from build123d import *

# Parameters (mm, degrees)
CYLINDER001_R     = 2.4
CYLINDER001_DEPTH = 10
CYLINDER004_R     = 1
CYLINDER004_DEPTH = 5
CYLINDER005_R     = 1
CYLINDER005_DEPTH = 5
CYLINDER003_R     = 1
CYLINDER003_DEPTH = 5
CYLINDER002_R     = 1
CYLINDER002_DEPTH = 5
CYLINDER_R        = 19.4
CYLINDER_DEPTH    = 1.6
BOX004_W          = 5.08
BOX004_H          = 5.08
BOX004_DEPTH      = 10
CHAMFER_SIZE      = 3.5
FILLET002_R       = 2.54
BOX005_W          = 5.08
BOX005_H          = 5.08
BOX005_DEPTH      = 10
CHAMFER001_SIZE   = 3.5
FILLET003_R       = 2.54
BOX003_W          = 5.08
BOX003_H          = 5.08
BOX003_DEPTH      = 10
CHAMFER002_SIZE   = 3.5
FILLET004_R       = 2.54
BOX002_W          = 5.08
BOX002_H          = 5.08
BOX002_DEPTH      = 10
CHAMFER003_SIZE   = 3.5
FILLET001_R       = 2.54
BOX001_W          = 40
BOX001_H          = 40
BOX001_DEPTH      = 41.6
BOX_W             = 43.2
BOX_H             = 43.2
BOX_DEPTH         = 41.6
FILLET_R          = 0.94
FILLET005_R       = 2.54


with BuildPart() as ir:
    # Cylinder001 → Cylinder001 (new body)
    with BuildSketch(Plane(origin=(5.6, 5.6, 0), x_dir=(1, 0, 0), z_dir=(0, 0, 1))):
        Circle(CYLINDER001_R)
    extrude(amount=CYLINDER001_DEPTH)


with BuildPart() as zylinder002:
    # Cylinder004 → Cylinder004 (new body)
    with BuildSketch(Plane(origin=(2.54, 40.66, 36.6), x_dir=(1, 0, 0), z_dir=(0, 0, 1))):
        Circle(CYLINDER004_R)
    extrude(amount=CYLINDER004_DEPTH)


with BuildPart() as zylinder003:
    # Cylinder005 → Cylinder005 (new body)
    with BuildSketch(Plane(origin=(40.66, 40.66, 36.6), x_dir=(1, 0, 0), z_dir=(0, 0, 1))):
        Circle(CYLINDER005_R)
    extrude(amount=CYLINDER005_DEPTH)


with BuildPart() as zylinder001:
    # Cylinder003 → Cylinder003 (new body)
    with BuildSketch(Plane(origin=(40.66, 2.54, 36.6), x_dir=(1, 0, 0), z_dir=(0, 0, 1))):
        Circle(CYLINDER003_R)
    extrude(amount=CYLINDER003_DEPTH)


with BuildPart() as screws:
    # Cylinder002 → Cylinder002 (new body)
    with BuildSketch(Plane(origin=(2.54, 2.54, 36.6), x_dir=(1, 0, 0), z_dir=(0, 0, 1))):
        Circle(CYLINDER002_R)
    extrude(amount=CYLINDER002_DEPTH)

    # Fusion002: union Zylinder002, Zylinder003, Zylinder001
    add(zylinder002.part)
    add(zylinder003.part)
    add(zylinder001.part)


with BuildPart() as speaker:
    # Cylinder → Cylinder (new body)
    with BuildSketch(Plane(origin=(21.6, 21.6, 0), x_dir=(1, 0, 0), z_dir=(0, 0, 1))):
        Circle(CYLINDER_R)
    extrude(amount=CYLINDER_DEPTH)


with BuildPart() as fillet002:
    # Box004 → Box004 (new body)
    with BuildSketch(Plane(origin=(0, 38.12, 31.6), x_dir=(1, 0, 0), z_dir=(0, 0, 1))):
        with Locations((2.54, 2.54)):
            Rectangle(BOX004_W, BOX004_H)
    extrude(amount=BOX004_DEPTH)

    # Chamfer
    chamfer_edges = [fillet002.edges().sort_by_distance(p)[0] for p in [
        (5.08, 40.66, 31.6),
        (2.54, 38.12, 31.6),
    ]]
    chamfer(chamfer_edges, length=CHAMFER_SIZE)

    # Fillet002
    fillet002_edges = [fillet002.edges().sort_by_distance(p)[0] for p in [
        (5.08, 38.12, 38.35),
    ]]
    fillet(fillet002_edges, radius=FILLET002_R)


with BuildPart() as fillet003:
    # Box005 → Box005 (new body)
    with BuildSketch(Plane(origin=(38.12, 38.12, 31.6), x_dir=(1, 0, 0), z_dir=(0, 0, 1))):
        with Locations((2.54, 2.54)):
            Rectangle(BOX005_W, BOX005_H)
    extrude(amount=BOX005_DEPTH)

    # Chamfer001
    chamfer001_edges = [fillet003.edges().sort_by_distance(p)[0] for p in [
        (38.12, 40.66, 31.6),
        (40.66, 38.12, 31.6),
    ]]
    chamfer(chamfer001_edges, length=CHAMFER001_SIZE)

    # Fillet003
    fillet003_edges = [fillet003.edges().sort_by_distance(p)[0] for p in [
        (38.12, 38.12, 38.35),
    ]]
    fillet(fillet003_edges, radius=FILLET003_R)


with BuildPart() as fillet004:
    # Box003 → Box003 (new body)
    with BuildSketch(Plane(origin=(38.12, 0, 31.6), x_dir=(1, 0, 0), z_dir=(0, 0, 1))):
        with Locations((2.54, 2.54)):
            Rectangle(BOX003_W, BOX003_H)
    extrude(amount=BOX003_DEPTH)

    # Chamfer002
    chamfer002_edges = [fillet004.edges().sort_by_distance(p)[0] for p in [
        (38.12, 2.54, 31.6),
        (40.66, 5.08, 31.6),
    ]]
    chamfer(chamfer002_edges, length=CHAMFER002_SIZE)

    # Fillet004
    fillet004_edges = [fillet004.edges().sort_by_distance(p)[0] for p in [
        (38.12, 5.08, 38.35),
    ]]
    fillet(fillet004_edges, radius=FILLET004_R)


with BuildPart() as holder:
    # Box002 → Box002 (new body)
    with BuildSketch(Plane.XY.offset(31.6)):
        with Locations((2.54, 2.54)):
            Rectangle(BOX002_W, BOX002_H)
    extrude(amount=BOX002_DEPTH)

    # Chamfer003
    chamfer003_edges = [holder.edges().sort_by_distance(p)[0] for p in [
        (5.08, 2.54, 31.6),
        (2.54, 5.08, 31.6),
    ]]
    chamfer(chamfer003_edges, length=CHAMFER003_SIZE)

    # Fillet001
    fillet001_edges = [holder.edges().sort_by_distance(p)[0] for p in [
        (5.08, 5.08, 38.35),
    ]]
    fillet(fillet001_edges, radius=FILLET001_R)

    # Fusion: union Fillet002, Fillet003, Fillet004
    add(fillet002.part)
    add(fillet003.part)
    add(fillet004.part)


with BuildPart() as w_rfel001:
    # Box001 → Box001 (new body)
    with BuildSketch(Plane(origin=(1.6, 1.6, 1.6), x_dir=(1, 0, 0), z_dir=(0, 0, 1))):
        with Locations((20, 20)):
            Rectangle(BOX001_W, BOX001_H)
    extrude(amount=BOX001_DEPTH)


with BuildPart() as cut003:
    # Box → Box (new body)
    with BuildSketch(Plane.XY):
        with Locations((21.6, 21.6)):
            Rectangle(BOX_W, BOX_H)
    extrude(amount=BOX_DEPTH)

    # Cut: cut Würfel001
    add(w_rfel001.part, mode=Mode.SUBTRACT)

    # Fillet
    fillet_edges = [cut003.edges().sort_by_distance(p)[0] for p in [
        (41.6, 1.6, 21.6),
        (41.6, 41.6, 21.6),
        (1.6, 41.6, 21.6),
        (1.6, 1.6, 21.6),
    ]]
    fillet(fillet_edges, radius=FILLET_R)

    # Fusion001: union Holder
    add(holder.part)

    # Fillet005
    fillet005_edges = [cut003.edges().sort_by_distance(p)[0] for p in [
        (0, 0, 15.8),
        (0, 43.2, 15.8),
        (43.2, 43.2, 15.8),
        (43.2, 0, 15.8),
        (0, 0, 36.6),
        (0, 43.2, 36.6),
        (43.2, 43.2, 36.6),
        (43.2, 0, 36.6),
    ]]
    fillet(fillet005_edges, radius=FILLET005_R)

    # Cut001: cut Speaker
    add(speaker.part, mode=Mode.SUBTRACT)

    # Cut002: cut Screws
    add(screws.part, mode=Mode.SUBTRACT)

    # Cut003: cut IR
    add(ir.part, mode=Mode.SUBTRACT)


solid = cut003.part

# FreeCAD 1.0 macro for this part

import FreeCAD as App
import Part
import Sketcher


def edges_at(feature, points):
    """Names of the edges that pass closest to the given points."""
    edges = feature.Shape.Edges
    near = lambda p: min(range(len(edges)), key=lambda i: edges[i].distToShape(Part.Vertex(*p))[0])
    return sorted({f"Edge{near(p) + 1}" for p in points})

doc = App.newDocument("Part")
body = doc.addObject("PartDesign::Body", "Body")

# Sketch on XY plane
sketch1 = body.newObject("Sketcher::SketchObject", "Sketch")
sketch1.AttachmentSupport = (doc.getObject("XY_Plane"), [""])
sketch1.MapMode = "FlatFace"
sketch1.addGeometry(Part.Circle(App.Vector(5.6, 5.6, 0), App.Vector(0, 0, 1), 2.4), False)
sketch1.addConstraint([
    Sketcher.Constraint("Diameter", 0, 4.8),
    Sketcher.Constraint("DistanceX", -1, 1, 0, 3, 5.6),
    Sketcher.Constraint("DistanceY", -1, 1, 0, 3, 5.6),
])
pad1 = body.newObject("PartDesign::Pad", "Pad")
pad1.Profile = sketch1
pad1.Length = 10
body2 = doc.addObject("PartDesign::Body", "Body001")

# Sketch on XY plane
sketch2 = body2.newObject("Sketcher::SketchObject", "Sketch001")
sketch2.AttachmentSupport = (doc.getObject("XY_Plane001"), [""])
sketch2.MapMode = "FlatFace"
sketch2.AttachmentOffset = App.Placement(App.Vector(0, 0, 36.6), App.Rotation())
sketch2.addGeometry(Part.Circle(App.Vector(2.5, 40.7, 0), App.Vector(0, 0, 1), 1), False)
sketch2.addConstraint([
    Sketcher.Constraint("Diameter", 0, 2.0),
    Sketcher.Constraint("DistanceX", -1, 1, 0, 3, 2.54),
    Sketcher.Constraint("DistanceY", -1, 1, 0, 3, 40.66),
])
pad2 = body2.newObject("PartDesign::Pad", "Pad001")
pad2.Profile = sketch2
pad2.Length = 5
body3 = doc.addObject("PartDesign::Body", "Body002")

# Sketch on XY plane
sketch3 = body3.newObject("Sketcher::SketchObject", "Sketch002")
sketch3.AttachmentSupport = (doc.getObject("XY_Plane002"), [""])
sketch3.MapMode = "FlatFace"
sketch3.AttachmentOffset = App.Placement(App.Vector(0, 0, 36.6), App.Rotation())
sketch3.addGeometry(Part.Circle(App.Vector(40.7, 40.7, 0), App.Vector(0, 0, 1), 1), False)
sketch3.addConstraint([
    Sketcher.Constraint("Diameter", 0, 2.0),
    Sketcher.Constraint("DistanceX", -1, 1, 0, 3, 40.66),
    Sketcher.Constraint("DistanceY", -1, 1, 0, 3, 40.66),
])
pad3 = body3.newObject("PartDesign::Pad", "Pad002")
pad3.Profile = sketch3
pad3.Length = 5
body4 = doc.addObject("PartDesign::Body", "Body003")

# Sketch on XY plane
sketch4 = body4.newObject("Sketcher::SketchObject", "Sketch003")
sketch4.AttachmentSupport = (doc.getObject("XY_Plane003"), [""])
sketch4.MapMode = "FlatFace"
sketch4.AttachmentOffset = App.Placement(App.Vector(0, 0, 36.6), App.Rotation())
sketch4.addGeometry(Part.Circle(App.Vector(40.7, 2.5, 0), App.Vector(0, 0, 1), 1), False)
sketch4.addConstraint([
    Sketcher.Constraint("Diameter", 0, 2.0),
    Sketcher.Constraint("DistanceX", -1, 1, 0, 3, 40.66),
    Sketcher.Constraint("DistanceY", -1, 1, 0, 3, 2.54),
])
pad4 = body4.newObject("PartDesign::Pad", "Pad003")
pad4.Profile = sketch4
pad4.Length = 5
body5 = doc.addObject("PartDesign::Body", "Body004")
body5.AllowCompound = True

# Sketch on XY plane
sketch5 = body5.newObject("Sketcher::SketchObject", "Sketch004")
sketch5.AttachmentSupport = (doc.getObject("XY_Plane004"), [""])
sketch5.MapMode = "FlatFace"
sketch5.AttachmentOffset = App.Placement(App.Vector(0, 0, 36.6), App.Rotation())
sketch5.addGeometry(Part.Circle(App.Vector(2.5, 2.5, 0), App.Vector(0, 0, 1), 1), False)
sketch5.addConstraint([
    Sketcher.Constraint("Diameter", 0, 2.0),
    Sketcher.Constraint("DistanceX", -1, 1, 0, 3, 2.54),
    Sketcher.Constraint("DistanceY", -1, 1, 0, 3, 2.54),
])
pad5 = body5.newObject("PartDesign::Pad", "Pad004")
pad5.Profile = sketch5
pad5.Length = 5
doc.recompute()

boolean = body5.newObject("PartDesign::Boolean", "Boolean")
boolean.Type = "Fuse"
boolean.addObjects([body2])
doc.recompute()

boolean2 = body5.newObject("PartDesign::Boolean", "Boolean001")
boolean2.Type = "Fuse"
boolean2.addObjects([body3])
doc.recompute()

boolean3 = body5.newObject("PartDesign::Boolean", "Boolean002")
boolean3.Type = "Fuse"
boolean3.addObjects([body4])
body6 = doc.addObject("PartDesign::Body", "Body005")

# Sketch on XY plane
sketch6 = body6.newObject("Sketcher::SketchObject", "Sketch005")
sketch6.AttachmentSupport = (doc.getObject("XY_Plane005"), [""])
sketch6.MapMode = "FlatFace"
sketch6.addGeometry(Part.Circle(App.Vector(22, 22, 0), App.Vector(0, 0, 1), 19), False)
sketch6.addConstraint([
    Sketcher.Constraint("Diameter", 0, 38.8),
    Sketcher.Constraint("DistanceX", -1, 1, 0, 3, 21.6),
    Sketcher.Constraint("DistanceY", -1, 1, 0, 3, 21.6),
])
pad6 = body6.newObject("PartDesign::Pad", "Pad005")
pad6.Profile = sketch6
pad6.Length = 1.6
body7 = doc.addObject("PartDesign::Body", "Body006")

# Sketch on XY plane
sketch7 = body7.newObject("Sketcher::SketchObject", "Sketch006")
sketch7.AttachmentSupport = (doc.getObject("XY_Plane006"), [""])
sketch7.MapMode = "FlatFace"
sketch7.AttachmentOffset = App.Placement(App.Vector(0, 0, 31.6), App.Rotation())
sketch7.addGeometry([
    Part.LineSegment(App.Vector(0, 43, 0), App.Vector(0, 38, 0)),
    Part.LineSegment(App.Vector(0, 38, 0), App.Vector(5, 38, 0)),
    Part.LineSegment(App.Vector(5, 38, 0), App.Vector(5, 43, 0)),
    Part.LineSegment(App.Vector(5, 43, 0), App.Vector(0, 43, 0)),
], False)
sketch7.addConstraint([
    Sketcher.Constraint("Coincident", 0, 2, 1, 1),
    Sketcher.Constraint("Coincident", 1, 2, 2, 1),
    Sketcher.Constraint("Coincident", 2, 2, 3, 1),
    Sketcher.Constraint("Coincident", 3, 2, 0, 1),
    Sketcher.Constraint("Vertical", 0),
    Sketcher.Constraint("Horizontal", 1),
    Sketcher.Constraint("Vertical", 2),
    Sketcher.Constraint("Horizontal", 3),
    Sketcher.Constraint("PointOnObject", 0, 2, -2),
    Sketcher.Constraint("Equal", 3, 0),
    Sketcher.Constraint("DistanceX", 1, 1, 1, 2, 5.08),
    Sketcher.Constraint("DistanceY", -1, 1, 2, 2, 43.2),
])
pad7 = body7.newObject("PartDesign::Pad", "Pad006")
pad7.Profile = sketch7
pad7.Length = 10
doc.recompute()

chamfer = body7.newObject("PartDesign::Chamfer", "Chamfer")
chamfer.Base = (pad7, edges_at(pad7, [(5.08, 40.66, 31.6), (2.54, 38.12, 31.6)]))
chamfer.Size = 3.5
doc.recompute()

fillet = body7.newObject("PartDesign::Fillet", "Fillet")
fillet.Base = (chamfer, edges_at(chamfer, [(5.08, 38.12, 38.35)]))
fillet.Radius = 2.54
body8 = doc.addObject("PartDesign::Body", "Body007")

# Sketch on XY plane
sketch8 = body8.newObject("Sketcher::SketchObject", "Sketch007")
sketch8.AttachmentSupport = (doc.getObject("XY_Plane007"), [""])
sketch8.MapMode = "FlatFace"
sketch8.AttachmentOffset = App.Placement(App.Vector(0, 0, 31.6), App.Rotation())
sketch8.addGeometry([
    Part.LineSegment(App.Vector(38, 43, 0), App.Vector(38, 38, 0)),
    Part.LineSegment(App.Vector(38, 38, 0), App.Vector(43, 38, 0)),
    Part.LineSegment(App.Vector(43, 38, 0), App.Vector(43, 43, 0)),
    Part.LineSegment(App.Vector(43, 43, 0), App.Vector(38, 43, 0)),
], False)
sketch8.addConstraint([
    Sketcher.Constraint("Coincident", 0, 2, 1, 1),
    Sketcher.Constraint("Coincident", 1, 2, 2, 1),
    Sketcher.Constraint("Coincident", 2, 2, 3, 1),
    Sketcher.Constraint("Coincident", 3, 2, 0, 1),
    Sketcher.Constraint("Vertical", 0),
    Sketcher.Constraint("Horizontal", 1),
    Sketcher.Constraint("Vertical", 2),
    Sketcher.Constraint("Horizontal", 3),
    Sketcher.Constraint("Equal", 3, 0),
    Sketcher.Constraint("DistanceX", 1, 1, 1, 2, 5.08),
    Sketcher.Constraint("DistanceX", -1, 1, 1, 2, 43.2),
    Sketcher.Constraint("DistanceY", -1, 1, 2, 2, 43.2),
])
pad8 = body8.newObject("PartDesign::Pad", "Pad007")
pad8.Profile = sketch8
pad8.Length = 10
doc.recompute()

chamfer2 = body8.newObject("PartDesign::Chamfer", "Chamfer001")
chamfer2.Base = (pad8, edges_at(pad8, [(38.12, 40.66, 31.6), (40.66, 38.12, 31.6)]))
chamfer2.Size = 3.5
doc.recompute()

fillet2 = body8.newObject("PartDesign::Fillet", "Fillet001")
fillet2.Base = (chamfer2, edges_at(chamfer2, [(38.12, 38.12, 38.35)]))
fillet2.Radius = 2.54
body9 = doc.addObject("PartDesign::Body", "Body008")

# Sketch on XY plane
sketch9 = body9.newObject("Sketcher::SketchObject", "Sketch008")
sketch9.AttachmentSupport = (doc.getObject("XY_Plane008"), [""])
sketch9.MapMode = "FlatFace"
sketch9.AttachmentOffset = App.Placement(App.Vector(0, 0, 31.6), App.Rotation())
sketch9.addGeometry([
    Part.LineSegment(App.Vector(38, 5, 0), App.Vector(38, 0, 0)),
    Part.LineSegment(App.Vector(38, 0, 0), App.Vector(43, 0, 0)),
    Part.LineSegment(App.Vector(43, 0, 0), App.Vector(43, 5, 0)),
    Part.LineSegment(App.Vector(43, 5, 0), App.Vector(38, 5, 0)),
], False)
sketch9.addConstraint([
    Sketcher.Constraint("Coincident", 0, 2, 1, 1),
    Sketcher.Constraint("Coincident", 1, 2, 2, 1),
    Sketcher.Constraint("Coincident", 2, 2, 3, 1),
    Sketcher.Constraint("Coincident", 3, 2, 0, 1),
    Sketcher.Constraint("Vertical", 0),
    Sketcher.Constraint("Horizontal", 1),
    Sketcher.Constraint("Vertical", 2),
    Sketcher.Constraint("Horizontal", 3),
    Sketcher.Constraint("PointOnObject", 0, 2, -1),
    Sketcher.Constraint("Equal", 3, 0),
    Sketcher.Constraint("DistanceX", 1, 1, 1, 2, 5.08),
    Sketcher.Constraint("DistanceX", -1, 1, 1, 2, 43.2),
])
pad9 = body9.newObject("PartDesign::Pad", "Pad008")
pad9.Profile = sketch9
pad9.Length = 10
doc.recompute()

chamfer3 = body9.newObject("PartDesign::Chamfer", "Chamfer002")
chamfer3.Base = (pad9, edges_at(pad9, [(38.12, 2.54, 31.6), (40.66, 5.08, 31.6)]))
chamfer3.Size = 3.5
doc.recompute()

fillet3 = body9.newObject("PartDesign::Fillet", "Fillet002")
fillet3.Base = (chamfer3, edges_at(chamfer3, [(38.12, 5.08, 38.35)]))
fillet3.Radius = 2.54
body10 = doc.addObject("PartDesign::Body", "Body009")
body10.AllowCompound = True

# Sketch on XY plane
sketch10 = body10.newObject("Sketcher::SketchObject", "Sketch009")
sketch10.AttachmentSupport = (doc.getObject("XY_Plane009"), [""])
sketch10.MapMode = "FlatFace"
sketch10.AttachmentOffset = App.Placement(App.Vector(0, 0, 31.6), App.Rotation())
sketch10.addGeometry([
    Part.LineSegment(App.Vector(0, 5, 0), App.Vector(0, 0, 0)),
    Part.LineSegment(App.Vector(0, 0, 0), App.Vector(5, 0, 0)),
    Part.LineSegment(App.Vector(5, 0, 0), App.Vector(5, 5, 0)),
    Part.LineSegment(App.Vector(5, 5, 0), App.Vector(0, 5, 0)),
], False)
sketch10.addConstraint([
    Sketcher.Constraint("Coincident", 0, 2, 1, 1),
    Sketcher.Constraint("Coincident", 1, 2, 2, 1),
    Sketcher.Constraint("Coincident", 2, 2, 3, 1),
    Sketcher.Constraint("Coincident", 3, 2, 0, 1),
    Sketcher.Constraint("Vertical", 0),
    Sketcher.Constraint("Horizontal", 1),
    Sketcher.Constraint("Vertical", 2),
    Sketcher.Constraint("Horizontal", 3),
    Sketcher.Constraint("Coincident", 0, 2, -1, 1),
    Sketcher.Constraint("Equal", 3, 0),
    Sketcher.Constraint("DistanceX", 1, 1, 1, 2, 5.08),
])
pad10 = body10.newObject("PartDesign::Pad", "Pad009")
pad10.Profile = sketch10
pad10.Length = 10
doc.recompute()

chamfer4 = body10.newObject("PartDesign::Chamfer", "Chamfer003")
chamfer4.Base = (pad10, edges_at(pad10, [(5.08, 2.54, 31.6), (2.54, 5.08, 31.6)]))
chamfer4.Size = 3.5
doc.recompute()

fillet4 = body10.newObject("PartDesign::Fillet", "Fillet003")
fillet4.Base = (chamfer4, edges_at(chamfer4, [(5.08, 5.08, 38.35)]))
fillet4.Radius = 2.54
doc.recompute()

boolean4 = body10.newObject("PartDesign::Boolean", "Boolean003")
boolean4.Type = "Fuse"
boolean4.addObjects([body7])
doc.recompute()

boolean5 = body10.newObject("PartDesign::Boolean", "Boolean004")
boolean5.Type = "Fuse"
boolean5.addObjects([body8])
doc.recompute()

boolean6 = body10.newObject("PartDesign::Boolean", "Boolean005")
boolean6.Type = "Fuse"
boolean6.addObjects([body9])
body11 = doc.addObject("PartDesign::Body", "Body010")

# Sketch on XY plane
sketch11 = body11.newObject("Sketcher::SketchObject", "Sketch010")
sketch11.AttachmentSupport = (doc.getObject("XY_Plane010"), [""])
sketch11.MapMode = "FlatFace"
sketch11.AttachmentOffset = App.Placement(App.Vector(0, 0, 1.6), App.Rotation())
sketch11.addGeometry([
    Part.LineSegment(App.Vector(2, 42, 0), App.Vector(2, 2, 0)),
    Part.LineSegment(App.Vector(2, 2, 0), App.Vector(42, 2, 0)),
    Part.LineSegment(App.Vector(42, 2, 0), App.Vector(42, 42, 0)),
    Part.LineSegment(App.Vector(42, 42, 0), App.Vector(2, 42, 0)),
], False)
sketch11.addConstraint([
    Sketcher.Constraint("Coincident", 0, 2, 1, 1),
    Sketcher.Constraint("Coincident", 1, 2, 2, 1),
    Sketcher.Constraint("Coincident", 2, 2, 3, 1),
    Sketcher.Constraint("Coincident", 3, 2, 0, 1),
    Sketcher.Constraint("Vertical", 0),
    Sketcher.Constraint("Horizontal", 1),
    Sketcher.Constraint("Vertical", 2),
    Sketcher.Constraint("Horizontal", 3),
    Sketcher.Constraint("Equal", 3, 0),
    Sketcher.Constraint("DistanceX", 1, 1, 1, 2, 40.0),
    Sketcher.Constraint("DistanceX", -1, 1, 0, 2, 1.6),
    Sketcher.Constraint("DistanceY", -1, 1, 0, 2, 1.6),
])
pad11 = body11.newObject("PartDesign::Pad", "Pad010")
pad11.Profile = sketch11
pad11.Length = 41.6
body12 = doc.addObject("PartDesign::Body", "Body011")

# Sketch on XY plane
sketch12 = body12.newObject("Sketcher::SketchObject", "Sketch011")
sketch12.AttachmentSupport = (doc.getObject("XY_Plane011"), [""])
sketch12.MapMode = "FlatFace"
sketch12.addGeometry([
    Part.LineSegment(App.Vector(0, 43, 0), App.Vector(0, 0, 0)),
    Part.LineSegment(App.Vector(0, 0, 0), App.Vector(43, 0, 0)),
    Part.LineSegment(App.Vector(43, 0, 0), App.Vector(43, 43, 0)),
    Part.LineSegment(App.Vector(43, 43, 0), App.Vector(0, 43, 0)),
], False)
sketch12.addConstraint([
    Sketcher.Constraint("Coincident", 0, 2, 1, 1),
    Sketcher.Constraint("Coincident", 1, 2, 2, 1),
    Sketcher.Constraint("Coincident", 2, 2, 3, 1),
    Sketcher.Constraint("Coincident", 3, 2, 0, 1),
    Sketcher.Constraint("Vertical", 0),
    Sketcher.Constraint("Horizontal", 1),
    Sketcher.Constraint("Vertical", 2),
    Sketcher.Constraint("Horizontal", 3),
    Sketcher.Constraint("Coincident", 0, 2, -1, 1),
    Sketcher.Constraint("Equal", 3, 0),
    Sketcher.Constraint("DistanceX", 1, 1, 1, 2, 43.2),
])
pad12 = body12.newObject("PartDesign::Pad", "Pad011")
pad12.Profile = sketch12
pad12.Length = 41.6
doc.recompute()

boolean7 = body12.newObject("PartDesign::Boolean", "Boolean006")
boolean7.Type = "Cut"
boolean7.addObjects([body11])
doc.recompute()

fillet5 = body12.newObject("PartDesign::Fillet", "Fillet004")
fillet5.Base = (boolean7, edges_at(boolean7, [
    (41.6, 1.6, 21.6),
    (41.6, 41.6, 21.6),
    (1.6, 41.6, 21.6),
    (1.6, 1.6, 21.6),
]))
fillet5.Radius = 0.94
doc.recompute()

boolean8 = body12.newObject("PartDesign::Boolean", "Boolean007")
boolean8.Type = "Fuse"
boolean8.addObjects([body10])
doc.recompute()

fillet6 = body12.newObject("PartDesign::Fillet", "Fillet005")
fillet6.Base = (boolean8, edges_at(boolean8, [
    (0, 0, 20.8),
    (0, 43.2, 20.8),
    (43.2, 43.2, 20.8),
    (43.2, 0, 20.8),
    (0, 0, 20.8),
    (0, 43.2, 20.8),
    (43.2, 43.2, 20.8),
    (43.2, 0, 20.8),
]))
fillet6.Radius = 2.54
doc.recompute()

boolean9 = body12.newObject("PartDesign::Boolean", "Boolean008")
boolean9.Type = "Cut"
boolean9.addObjects([body6])
doc.recompute()

boolean10 = body12.newObject("PartDesign::Boolean", "Boolean009")
boolean10.Type = "Cut"
boolean10.addObjects([body5])
doc.recompute()

boolean11 = body12.newObject("PartDesign::Boolean", "Boolean010")
boolean11.Type = "Cut"
boolean11.addObjects([body])

doc.recompute()
